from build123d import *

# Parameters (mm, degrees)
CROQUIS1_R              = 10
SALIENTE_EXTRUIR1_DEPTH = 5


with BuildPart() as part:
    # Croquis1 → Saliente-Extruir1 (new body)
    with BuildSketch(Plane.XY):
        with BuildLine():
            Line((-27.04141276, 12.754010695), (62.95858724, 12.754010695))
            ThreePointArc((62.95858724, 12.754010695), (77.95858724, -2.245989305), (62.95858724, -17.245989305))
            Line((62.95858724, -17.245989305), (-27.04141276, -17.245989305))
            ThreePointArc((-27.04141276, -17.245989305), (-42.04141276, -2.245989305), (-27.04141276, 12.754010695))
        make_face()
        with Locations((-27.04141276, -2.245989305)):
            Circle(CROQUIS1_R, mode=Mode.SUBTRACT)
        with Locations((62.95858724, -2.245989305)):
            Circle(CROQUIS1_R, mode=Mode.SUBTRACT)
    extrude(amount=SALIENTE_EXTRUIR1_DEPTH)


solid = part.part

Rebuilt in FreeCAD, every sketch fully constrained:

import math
import FreeCAD as App
import Part
import Sketcher

V = App.Vector

doc = App.newDocument("Part")
params = doc.addObject("Spreadsheet::Sheet", "Params")
for row, (alias, value) in enumerate([
    ("sketch1_diameter", "20 mm"),
    ("sketch1_radius", "15 mm"),
    ("sketch1_width", "90 mm"),
    ("pad1_length", "5 mm"),
], start=1):
    params.set(f"A{row}", alias)
    params.set(f"B{row}", "=" + value)
    params.setAlias(f"B{row}", alias)

body = doc.addObject("PartDesign::Body", "Body")

# Sketch on XY plane
sketch1 = body.newObject("Sketcher::SketchObject", "Sketch")
sketch1.AttachmentSupport = (doc.getObject("XY_Plane"), [""])
sketch1.MapMode = "FlatFace"
sketch1.addGeometry(Part.LineSegment(V(62.958587, 12.754011, 0), V(-27.041413, 12.754011, 0)), False)
sketch1.addGeometry(Part.ArcOfCircle(Part.Circle(V(-27.041413, -2.245989, 0), V(0, 0, 1), 15), math.radians(90), math.radians(270)), False)
sketch1.addGeometry(Part.LineSegment(V(-27.041413, -17.245989, 0), V(62.958587, -17.245989, 0)), False)
sketch1.addGeometry(Part.ArcOfCircle(Part.Circle(V(62.958587, -2.245989, 0), V(0, 0, 1), 15), math.radians(-90), math.radians(90)), False)
sketch1.addGeometry(Part.Circle(V(62.958587, -2.245989, 0), V(0, 0, 1), 10), False)
sketch1.addGeometry(Part.Circle(V(-27.041413, -2.245989, 0), V(0, 0, 1), 10), False)
sketch1.addConstraint(Sketcher.Constraint("Tangent", 0, 2, 1, 1))
sketch1.addConstraint(Sketcher.Constraint("Tangent", 1, 2, 2, 1))
sketch1.addConstraint(Sketcher.Constraint("Tangent", 2, 2, 3, 1))
sketch1.addConstraint(Sketcher.Constraint("Tangent", 3, 2, 0, 1))
sketch1.addConstraint(Sketcher.Constraint("Horizontal", 0))
sketch1.addConstraint(Sketcher.Constraint("Horizontal", 2))
sketch1.addConstraint(Sketcher.Constraint("Coincident", 4, 3, 3, 3))
sketch1.addConstraint(Sketcher.Constraint("Coincident", 5, 3, 1, 3))
sketch1.addConstraint(Sketcher.Constraint("Equal", 4, 5))
sketch1.addConstraint(Sketcher.Constraint("Diameter", 4, 20.0))
sketch1.addConstraint(Sketcher.Constraint("Radius", 1, 15.0))
sketch1.addConstraint(Sketcher.Constraint("DistanceX", 0, 2, 0, 1, 90.0))
sketch1.addConstraint(Sketcher.Constraint("DistanceY", 1, 3, -1, 1, 2.245989))
sketch1.addConstraint(Sketcher.Constraint("DistanceX", 1, 3, -1, 1, 27.041413))
sketch1.setExpression("Constraints[9]", "Params.sketch1_diameter")
sketch1.setExpression("Constraints[10]", "Params.sketch1_radius")
sketch1.setExpression("Constraints[11]", "Params.sketch1_width")
pad1 = body.newObject("PartDesign::Pad", "Pad")
pad1.Profile = sketch1
pad1.setExpression("Length", "Params.pad1_length")

doc.recompute()
